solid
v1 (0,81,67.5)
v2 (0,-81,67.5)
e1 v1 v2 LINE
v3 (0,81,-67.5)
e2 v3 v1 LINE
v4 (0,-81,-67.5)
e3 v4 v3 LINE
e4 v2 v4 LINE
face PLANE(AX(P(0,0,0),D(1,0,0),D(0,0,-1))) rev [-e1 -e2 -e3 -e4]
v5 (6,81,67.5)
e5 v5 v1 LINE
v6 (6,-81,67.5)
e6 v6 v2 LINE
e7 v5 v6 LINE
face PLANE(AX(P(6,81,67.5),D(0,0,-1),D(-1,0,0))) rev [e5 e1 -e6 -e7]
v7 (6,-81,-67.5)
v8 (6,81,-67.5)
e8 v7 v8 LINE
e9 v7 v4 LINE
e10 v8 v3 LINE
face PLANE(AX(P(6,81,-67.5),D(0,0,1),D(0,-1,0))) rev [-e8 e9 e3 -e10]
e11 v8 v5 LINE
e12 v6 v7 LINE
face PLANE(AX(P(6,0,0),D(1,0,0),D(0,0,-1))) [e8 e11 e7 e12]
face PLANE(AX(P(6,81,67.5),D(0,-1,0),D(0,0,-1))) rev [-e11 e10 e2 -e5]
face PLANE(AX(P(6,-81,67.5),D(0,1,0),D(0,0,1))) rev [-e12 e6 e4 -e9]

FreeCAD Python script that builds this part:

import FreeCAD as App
import Part
import Sketcher
from FreeCAD import Vector
Q = App.Units.Quantity

doc = App.newDocument("Part")
body = doc.addObject("PartDesign::Body", "Body")

sketch1 = body.newObject("Sketcher::SketchObject", "Sketch")
sketch1.AttachmentSupport = (doc.getObject("YZ_Plane"), [""])
sketch1.MapMode = "FlatFace"
sketch1.addGeometry(Part.LineSegment(Vector(81, 68, 0), Vector(-81, 68, 0)), False)
sketch1.addGeometry(Part.LineSegment(Vector(-81, 68, 0), Vector(-81, -68, 0)), False)
sketch1.addGeometry(Part.LineSegment(Vector(-81, -68, 0), Vector(81, -68, 0)), False)
sketch1.addGeometry(Part.LineSegment(Vector(81, -68, 0), Vector(81, 68, 0)), False)
sketch1.addConstraint(Sketcher.Constraint("Coincident", 0, 2, 1, 1))
sketch1.addConstraint(Sketcher.Constraint("Coincident", 1, 2, 2, 1))
sketch1.addConstraint(Sketcher.Constraint("Coincident", 2, 2, 3, 1))
sketch1.addConstraint(Sketcher.Constraint("Coincident", 3, 2, 0, 1))
sketch1.addConstraint(Sketcher.Constraint("Horizontal", 0))
sketch1.addConstraint(Sketcher.Constraint("Vertical", 1))
sketch1.addConstraint(Sketcher.Constraint("Horizontal", 2))
sketch1.addConstraint(Sketcher.Constraint("Vertical", 3))
sketch1.addConstraint(Sketcher.Constraint("Symmetric", 0, 2, 2, 2, -1, 1))
sketch1.addConstraint(Sketcher.Constraint("DistanceX", 0, 2, 0, 1, Q("162 mm")))
sketch1.addConstraint(Sketcher.Constraint("DistanceY", 1, 2, 1, 1, Q("135 mm")))
pad1 = body.newObject("PartDesign::Pad", "Pad")
pad1.Profile = sketch1
pad1.Length = 6

doc.recompute()
